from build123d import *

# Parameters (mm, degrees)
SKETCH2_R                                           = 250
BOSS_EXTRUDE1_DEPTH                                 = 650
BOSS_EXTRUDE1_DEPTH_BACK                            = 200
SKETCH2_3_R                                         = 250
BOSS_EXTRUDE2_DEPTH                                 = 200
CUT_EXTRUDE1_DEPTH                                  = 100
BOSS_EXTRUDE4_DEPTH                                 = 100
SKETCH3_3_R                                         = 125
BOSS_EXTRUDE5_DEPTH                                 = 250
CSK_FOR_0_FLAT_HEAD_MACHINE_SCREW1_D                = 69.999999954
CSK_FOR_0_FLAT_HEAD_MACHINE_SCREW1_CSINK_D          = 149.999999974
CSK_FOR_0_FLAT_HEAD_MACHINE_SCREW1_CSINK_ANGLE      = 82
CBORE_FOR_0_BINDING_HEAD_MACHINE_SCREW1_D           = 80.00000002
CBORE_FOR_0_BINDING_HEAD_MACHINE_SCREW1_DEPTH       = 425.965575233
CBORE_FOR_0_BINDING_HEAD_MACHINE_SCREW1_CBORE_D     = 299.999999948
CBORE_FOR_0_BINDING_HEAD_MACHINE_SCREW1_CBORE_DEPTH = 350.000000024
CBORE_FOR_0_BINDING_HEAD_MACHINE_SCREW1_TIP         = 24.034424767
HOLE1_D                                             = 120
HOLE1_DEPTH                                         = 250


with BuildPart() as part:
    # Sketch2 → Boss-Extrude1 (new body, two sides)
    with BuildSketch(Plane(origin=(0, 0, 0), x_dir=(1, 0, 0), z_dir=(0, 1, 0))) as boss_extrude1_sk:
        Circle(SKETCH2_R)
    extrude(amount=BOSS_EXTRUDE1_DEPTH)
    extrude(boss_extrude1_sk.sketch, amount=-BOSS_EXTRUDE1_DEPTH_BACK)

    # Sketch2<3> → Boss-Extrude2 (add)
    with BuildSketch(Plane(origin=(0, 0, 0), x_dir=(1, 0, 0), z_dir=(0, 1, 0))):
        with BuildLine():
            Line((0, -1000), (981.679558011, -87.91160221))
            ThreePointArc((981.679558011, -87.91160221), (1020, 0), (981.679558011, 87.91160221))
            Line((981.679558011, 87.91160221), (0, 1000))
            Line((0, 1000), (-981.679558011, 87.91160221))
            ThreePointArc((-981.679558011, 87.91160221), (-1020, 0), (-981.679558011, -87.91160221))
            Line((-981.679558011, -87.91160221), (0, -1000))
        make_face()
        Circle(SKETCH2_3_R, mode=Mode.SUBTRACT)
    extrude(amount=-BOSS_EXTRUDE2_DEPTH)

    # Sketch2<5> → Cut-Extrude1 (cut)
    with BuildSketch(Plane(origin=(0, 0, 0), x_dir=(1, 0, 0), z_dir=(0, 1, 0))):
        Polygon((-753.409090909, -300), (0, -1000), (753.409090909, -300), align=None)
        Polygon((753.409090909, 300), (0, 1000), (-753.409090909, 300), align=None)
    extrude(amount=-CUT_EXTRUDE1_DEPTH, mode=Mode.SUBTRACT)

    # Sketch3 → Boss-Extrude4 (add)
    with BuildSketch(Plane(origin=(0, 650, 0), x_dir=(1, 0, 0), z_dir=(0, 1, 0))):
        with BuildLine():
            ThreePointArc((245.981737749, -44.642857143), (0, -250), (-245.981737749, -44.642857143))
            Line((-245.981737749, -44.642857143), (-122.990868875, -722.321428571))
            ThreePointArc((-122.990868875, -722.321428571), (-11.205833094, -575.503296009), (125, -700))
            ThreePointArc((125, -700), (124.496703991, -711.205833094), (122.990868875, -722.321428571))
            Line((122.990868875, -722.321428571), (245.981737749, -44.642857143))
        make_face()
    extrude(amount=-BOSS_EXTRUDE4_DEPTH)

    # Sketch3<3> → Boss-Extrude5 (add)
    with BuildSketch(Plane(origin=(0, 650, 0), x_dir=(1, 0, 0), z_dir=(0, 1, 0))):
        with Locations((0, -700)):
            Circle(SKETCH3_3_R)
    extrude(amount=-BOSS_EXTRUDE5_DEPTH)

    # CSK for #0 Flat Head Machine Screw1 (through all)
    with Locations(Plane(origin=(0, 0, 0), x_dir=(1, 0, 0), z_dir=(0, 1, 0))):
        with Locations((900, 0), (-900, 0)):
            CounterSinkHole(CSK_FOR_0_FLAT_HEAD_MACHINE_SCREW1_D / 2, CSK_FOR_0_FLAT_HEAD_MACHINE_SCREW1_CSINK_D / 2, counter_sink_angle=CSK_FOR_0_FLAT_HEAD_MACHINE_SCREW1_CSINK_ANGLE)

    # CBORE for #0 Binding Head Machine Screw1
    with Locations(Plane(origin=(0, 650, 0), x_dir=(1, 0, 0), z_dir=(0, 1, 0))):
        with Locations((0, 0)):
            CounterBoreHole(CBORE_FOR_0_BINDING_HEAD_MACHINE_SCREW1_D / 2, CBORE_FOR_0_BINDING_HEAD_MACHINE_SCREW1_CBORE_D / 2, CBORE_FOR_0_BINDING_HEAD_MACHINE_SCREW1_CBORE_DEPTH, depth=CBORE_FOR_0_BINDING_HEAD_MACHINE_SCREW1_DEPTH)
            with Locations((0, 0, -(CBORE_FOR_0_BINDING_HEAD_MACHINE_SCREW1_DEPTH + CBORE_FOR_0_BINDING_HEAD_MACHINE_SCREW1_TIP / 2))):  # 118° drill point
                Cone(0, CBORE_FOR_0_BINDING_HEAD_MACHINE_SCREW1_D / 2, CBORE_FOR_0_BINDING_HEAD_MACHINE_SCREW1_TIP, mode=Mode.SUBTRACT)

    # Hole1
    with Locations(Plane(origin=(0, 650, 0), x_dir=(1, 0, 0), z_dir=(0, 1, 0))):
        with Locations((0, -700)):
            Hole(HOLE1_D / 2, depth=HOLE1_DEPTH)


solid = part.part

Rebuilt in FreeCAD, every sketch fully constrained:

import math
import FreeCAD as App
import Part
import Sketcher
from FreeCAD import Vector


def add_polygon(sketch, points):
    """Adds a closed chain of lines whose ends are joined by coincident constraints."""
    first, n = sketch.GeometryCount, len(points)
    for a, b in zip(points, points[1:] + points[:1]):
        sketch.addGeometry(Part.LineSegment(App.Vector(*a, 0), App.Vector(*b, 0)), False)
    for i in range(n):
        sketch.addConstraint(Sketcher.Constraint("Coincident", first + i, 2, first + (i + 1) % n, 1))

doc = App.newDocument("Part")
body = doc.addObject("PartDesign::Body", "Body")

sketch1 = body.newObject("Sketcher::SketchObject", "Sketch")
sketch1.AttachmentSupport = (doc.getObject("XZ_Plane"), [""])
sketch1.MapMode = "FlatFace"
sketch1.addGeometry(Part.Circle(Vector(0, 0, 0), Vector(0, 0, 1), 250), False)
sketch1.addConstraint(Sketcher.Constraint("Coincident", 0, 3, -1, 1))
sketch1.addConstraint(Sketcher.Constraint("Diameter", 0, 500.0))
pad1 = body.newObject("PartDesign::Pad", "Pad")
pad1.Profile = sketch1
pad1.Type = "TwoLengths"
pad1.Length = 650
pad1.Length2 = 200
pad1.Reversed = True

sketch2 = body.newObject("Sketcher::SketchObject", "Sketch001")
sketch2.AttachmentSupport = (doc.getObject("XZ_Plane"), [""])
sketch2.MapMode = "FlatFace"
sketch2.addGeometry(Part.LineSegment(Vector(0, 1000, 0), Vector(982, 88, 0)), False)
sketch2.addGeometry(Part.ArcOfCircle(Part.Circle(Vector(900, 0, 0), Vector(0, 0, 1), 120), math.radians(-47), math.radians(47)), False)
sketch2.addGeometry(Part.LineSegment(Vector(982, -88, 0), Vector(0, -1000, 0)), False)
sketch2.addGeometry(Part.LineSegment(Vector(0, -1000, 0), Vector(-982, -88, 0)), False)
sketch2.addGeometry(Part.ArcOfCircle(Part.Circle(Vector(-900, 0, 0), Vector(0, 0, 1), 120), math.radians(133), math.radians(227)), False)
sketch2.addGeometry(Part.LineSegment(Vector(-982, 88, 0), Vector(0, 1000, 0)), False)
sketch2.addGeometry(Part.Circle(Vector(0, 0, 0), Vector(0, 0, 1), 250), False)
sketch2.addConstraint(Sketcher.Constraint("Tangent", 0, 2, 1, 2))
sketch2.addConstraint(Sketcher.Constraint("Tangent", 1, 1, 2, 1))
sketch2.addConstraint(Sketcher.Constraint("Coincident", 2, 2, 3, 1))
sketch2.addConstraint(Sketcher.Constraint("Tangent", 3, 2, 4, 2))
sketch2.addConstraint(Sketcher.Constraint("Tangent", 4, 1, 5, 1))
sketch2.addConstraint(Sketcher.Constraint("Coincident", 5, 2, 0, 1))
sketch2.addConstraint(Sketcher.Constraint("Coincident", 6, 3, -1, 1))
sketch2.addConstraint(Sketcher.Constraint("Equal", 1, 4))
sketch2.addConstraint(Sketcher.Constraint("Symmetric", 1, 3, 4, 3, -1, 1))
sketch2.addConstraint(Sketcher.Constraint("Symmetric", 2, 2, 5, 2, -1, 1))
sketch2.addConstraint(Sketcher.Constraint("PointOnObject", 1, 3, -1))
sketch2.addConstraint(Sketcher.Constraint("PointOnObject", 2, 2, -2))
sketch2.addConstraint(Sketcher.Constraint("Diameter", 6, 500.0))
sketch2.addConstraint(Sketcher.Constraint("Radius", 1, 120.0))
sketch2.addConstraint(Sketcher.Constraint("Distance", 0, 1340.0))
sketch2.addConstraint(Sketcher.Constraint("DistanceX", -1, 1, 1, 3, 900.0))
pad2 = body.newObject("PartDesign::Pad", "Pad001")
pad2.Profile = sketch2
pad2.Length = 200

sketch3 = body.newObject("Sketcher::SketchObject", "Sketch002")
sketch3.AttachmentSupport = (doc.getObject("XZ_Plane"), [""])
sketch3.MapMode = "FlatFace"
add_polygon(sketch3, [(-753, 300), (0, 1000), (753, 300)])
add_polygon(sketch3, [(753, -300), (0, -1000), (-753, -300)])
sketch3.addConstraint(Sketcher.Constraint("Horizontal", 2))
sketch3.addConstraint(Sketcher.Constraint("Horizontal", 5))
sketch3.addConstraint(Sketcher.Constraint("Symmetric", 0, 2, 3, 2, -1, 1))
sketch3.addConstraint(Sketcher.Constraint("Symmetric", 1, 2, 4, 2, -1, 1))
sketch3.addConstraint(Sketcher.Constraint("PointOnObject", 0, 2, -2))
sketch3.addConstraint(Sketcher.Constraint("Parallel", 0, 3))
sketch3.addConstraint(Sketcher.Constraint("Vertical", 2, 2, 4, 2))
sketch3.addConstraint(Sketcher.Constraint("DistanceY", -1, 1, 0, 2, 1000.0))
sketch3.addConstraint(Sketcher.Constraint("DistanceY", -1, 1, 1, 2, 300.0))
sketch3.addConstraint(Sketcher.Constraint("DistanceX", 2, 2, 2, 1, 1506.818182))
pocket1 = body.newObject("PartDesign::Pocket", "Pocket")
pocket1.Profile = sketch3
pocket1.Length = 100
pocket1.Reversed = True

sketch4 = body.newObject("Sketcher::SketchObject", "Sketch003")
sketch4.AttachmentSupport = (doc.getObject("XZ_Plane"), [""])
sketch4.MapMode = "FlatFace"
sketch4.AttachmentOffset = App.Placement(Vector(0, 0, -650), App.Rotation())
sketch4.addGeometry(Part.ArcOfCircle(Part.Circle(Vector(0, 0, 0), Vector(0, 0, 1), 250), math.radians(10), math.radians(170)), False)
sketch4.addGeometry(Part.LineSegment(Vector(-246, 45, 0), Vector(-123, 722, 0)), False)
sketch4.addGeometry(Part.ArcOfCircle(Part.Circle(Vector(0, 700, 0), Vector(0, 0, 1), 125), math.radians(170), math.radians(360)), False)
sketch4.addGeometry(Part.ArcOfCircle(Part.Circle(Vector(0, 700, 0), Vector(0, 0, 1), 125), math.radians(0), math.radians(10.29)), False)
sketch4.addGeometry(Part.LineSegment(Vector(123, 722, 0), Vector(246, 45, 0)), False)
sketch4.addConstraint(Sketcher.Constraint("Tangent", 0, 2, 1, 1))
sketch4.addConstraint(Sketcher.Constraint("Tangent", 1, 2, 2, 1))
sketch4.addConstraint(Sketcher.Constraint("Tangent", 2, 2, 3, 1))
sketch4.addConstraint(Sketcher.Constraint("Tangent", 3, 2, 4, 1))
sketch4.addConstraint(Sketcher.Constraint("Tangent", 4, 2, 0, 1))
sketch4.addConstraint(Sketcher.Constraint("Coincident", 0, 3, -1, 1))
sketch4.addConstraint(Sketcher.Constraint("Equal", 2, 3))
sketch4.addConstraint(Sketcher.Constraint("PointOnObject", 2, 3, -2))
sketch4.addConstraint(Sketcher.Constraint("Horizontal", 3, 3, 2, 2))
sketch4.addConstraint(Sketcher.Constraint("Radius", 0, 250.0))
sketch4.addConstraint(Sketcher.Constraint("Radius", 2, 125.0))
sketch4.addConstraint(Sketcher.Constraint("DistanceY", -1, 1, 2, 3, 700.0))
pad3 = body.newObject("PartDesign::Pad", "Pad002")
pad3.Profile = sketch4
pad3.Length = 100

sketch5 = body.newObject("Sketcher::SketchObject", "Sketch004")
sketch5.AttachmentSupport = (doc.getObject("XZ_Plane"), [""])
sketch5.MapMode = "FlatFace"
sketch5.AttachmentOffset = App.Placement(Vector(0, 0, -650), App.Rotation())
sketch5.addGeometry(Part.Circle(Vector(0, 700, 0), Vector(0, 0, 1), 125), False)
sketch5.addConstraint(Sketcher.Constraint("PointOnObject", 0, 3, -2))
sketch5.addConstraint(Sketcher.Constraint("Diameter", 0, 250.0))
sketch5.addConstraint(Sketcher.Constraint("DistanceY", -1, 1, 0, 3, 700.0))
pad4 = body.newObject("PartDesign::Pad", "Pad003")
pad4.Profile = sketch5
pad4.Length = 250

sketch6 = body.newObject("Sketcher::SketchObject", "Sketch005")
sketch6.AttachmentSupport = (doc.getObject("XZ_Plane"), [""])
sketch6.MapMode = "FlatFace"
sketch6.addGeometry(Part.Circle(Vector(900, 0, 0), Vector(0, 0, 1), 35), False)
sketch6.addGeometry(Part.Circle(Vector(-900, 0, 0), Vector(0, 0, 1), 35), False)
sketch6.addConstraint(Sketcher.Constraint("Equal", 0, 1))
sketch6.addConstraint(Sketcher.Constraint("Symmetric", 0, 3, 1, 3, -1, 1))
sketch6.addConstraint(Sketcher.Constraint("PointOnObject", 0, 3, -1))
sketch6.addConstraint(Sketcher.Constraint("Diameter", 0, 70.0))
sketch6.addConstraint(Sketcher.Constraint("DistanceX", -1, 1, 0, 3, 900.0))
doc.recompute()
hole = body.newObject("PartDesign::Hole", "Hole")
hole.Profile = sketch6
hole.ThreadType = "None"
hole.Diameter = 70
hole.DepthType = "ThroughAll"
hole.HoleCutType = "Countersink"
hole.HoleCutDiameter = 150
hole.HoleCutCountersinkAngle = 82
hole.Reversed = True

sketch7 = body.newObject("Sketcher::SketchObject", "Sketch006")
sketch7.AttachmentSupport = (doc.getObject("XZ_Plane"), [""])
sketch7.MapMode = "FlatFace"
sketch7.AttachmentOffset = App.Placement(Vector(0, 0, -650), App.Rotation())
sketch7.addGeometry(Part.Circle(Vector(0, 0, 0), Vector(0, 0, 1), 40), False)
sketch7.addConstraint(Sketcher.Constraint("Coincident", 0, 3, -1, 1))
sketch7.addConstraint(Sketcher.Constraint("Diameter", 0, 80.0))
doc.recompute()
hole2 = body.newObject("PartDesign::Hole", "Hole001")
hole2.Profile = sketch7
hole2.ThreadType = "None"
hole2.Diameter = 80
hole2.DepthType = "Dimension"
hole2.Depth = 425.965575
hole2.DrillPoint = "Angled"
hole2.DrillPointAngle = 118
hole2.HoleCutType = "Counterbore"
hole2.HoleCutDiameter = 300
hole2.HoleCutDepth = 350
hole2.Reversed = True

sketch8 = body.newObject("Sketcher::SketchObject", "Sketch007")
sketch8.AttachmentSupport = (doc.getObject("XZ_Plane"), [""])
sketch8.MapMode = "FlatFace"
sketch8.AttachmentOffset = App.Placement(Vector(0, 0, -650), App.Rotation())
sketch8.addGeometry(Part.Circle(Vector(0, 700, 0), Vector(0, 0, 1), 60), False)
sketch8.addConstraint(Sketcher.Constraint("PointOnObject", 0, 3, -2))
sketch8.addConstraint(Sketcher.Constraint("Diameter", 0, 120.0))
sketch8.addConstraint(Sketcher.Constraint("DistanceY", -1, 1, 0, 3, 700.0))
doc.recompute()
hole3 = body.newObject("PartDesign::Hole", "Hole002")
hole3.Profile = sketch8
hole3.ThreadType = "None"
hole3.Diameter = 120
hole3.DepthType = "Dimension"
hole3.Depth = 250
hole3.DrillPoint = "Flat"
hole3.Reversed = True

doc.recompute()
